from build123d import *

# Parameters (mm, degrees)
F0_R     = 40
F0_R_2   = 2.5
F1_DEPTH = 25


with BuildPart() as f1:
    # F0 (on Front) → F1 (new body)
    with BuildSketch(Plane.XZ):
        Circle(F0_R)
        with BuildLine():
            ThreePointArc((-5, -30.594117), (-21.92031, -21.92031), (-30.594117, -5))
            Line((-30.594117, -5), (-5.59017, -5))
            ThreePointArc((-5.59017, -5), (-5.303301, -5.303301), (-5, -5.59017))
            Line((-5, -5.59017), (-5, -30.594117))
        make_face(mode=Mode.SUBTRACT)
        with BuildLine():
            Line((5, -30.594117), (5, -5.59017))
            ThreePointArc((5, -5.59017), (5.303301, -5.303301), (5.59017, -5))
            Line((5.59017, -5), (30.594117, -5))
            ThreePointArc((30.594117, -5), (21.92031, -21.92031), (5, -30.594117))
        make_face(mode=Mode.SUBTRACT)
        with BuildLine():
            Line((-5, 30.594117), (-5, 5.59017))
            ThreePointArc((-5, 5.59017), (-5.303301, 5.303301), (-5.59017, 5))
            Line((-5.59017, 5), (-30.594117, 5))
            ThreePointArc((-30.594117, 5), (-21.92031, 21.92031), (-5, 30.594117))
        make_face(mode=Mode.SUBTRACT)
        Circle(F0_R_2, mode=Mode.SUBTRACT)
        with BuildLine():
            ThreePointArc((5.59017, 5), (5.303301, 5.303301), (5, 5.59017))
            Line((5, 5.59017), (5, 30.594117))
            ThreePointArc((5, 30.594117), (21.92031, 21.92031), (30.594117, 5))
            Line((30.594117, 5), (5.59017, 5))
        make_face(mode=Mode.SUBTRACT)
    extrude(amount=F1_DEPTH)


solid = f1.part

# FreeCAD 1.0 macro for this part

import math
import FreeCAD as App
import Part
import Sketcher

doc = App.newDocument("Part")
params = doc.addObject("Spreadsheet::Sheet", "Params")
for row, (alias, value) in enumerate([
    ("sketch1_diameter", "80 mm"),
    ("sketch1_diameter2", "5 mm"),
    ("sketch1_radius", "31.000001 mm"),
    ("pad1_length", "25 mm"),
], start=1):
    params.set(f"A{row}", alias)
    params.set(f"B{row}", "=" + value)
    params.setAlias(f"B{row}", alias)

body = doc.addObject("PartDesign::Body", "Body")

# Sketch on XZ plane
sketch1 = doc.addObject("Sketcher::SketchObject", "Sketch")
body.addObject(sketch1)
sketch1.AttachmentSupport = (doc.XZ_Plane, [""])
sketch1.MapMode = "FlatFace"
sketch1.addGeometry(Part.Circle(App.Vector(0, 0, 0), App.Vector(0, 0, 1), 40), False)
sketch1.addGeometry(Part.LineSegment(App.Vector(-5, -5.6, 0), App.Vector(-5, -30.6, 0)), False)
sketch1.addGeometry(Part.ArcOfCircle(Part.Circle(App.Vector(0, 0, 0), App.Vector(0, 0, 1), 31), math.radians(-171), math.radians(-99)), False)
sketch1.addGeometry(Part.LineSegment(App.Vector(-30.6, -5, 0), App.Vector(-5.6, -5, 0)), False)
sketch1.addGeometry(Part.ArcOfCircle(Part.Circle(App.Vector(0, 0, 0), App.Vector(0, 0, 1), 7.5), math.radians(-138.19), math.radians(-131.81)), False)
sketch1.addGeometry(Part.Circle(App.Vector(0, 0, 0), App.Vector(0, 0, 1), 2.5), False)
sketch1.addGeometry(Part.ArcOfCircle(Part.Circle(App.Vector(0, 0, 0), App.Vector(0, 0, 1), 31), math.radians(-81), math.radians(-9)), False)
sketch1.addGeometry(Part.LineSegment(App.Vector(5, -30.6, 0), App.Vector(5, -5.6, 0)), False)
sketch1.addGeometry(Part.ArcOfCircle(Part.Circle(App.Vector(0, 0, 0), App.Vector(0, 0, 1), 7.5), math.radians(-48.19), math.radians(-41.81)), False)
sketch1.addGeometry(Part.LineSegment(App.Vector(5.6, -5, 0), App.Vector(30.6, -5, 0)), False)
sketch1.addGeometry(Part.ArcOfCircle(Part.Circle(App.Vector(0, 0, 0), App.Vector(0, 0, 1), 31), math.radians(99), math.radians(171)), False)
sketch1.addGeometry(Part.LineSegment(App.Vector(-5, 30.6, 0), App.Vector(-5, 5.6, 0)), False)
sketch1.addGeometry(Part.ArcOfCircle(Part.Circle(App.Vector(0, 0, 0), App.Vector(0, 0, 1), 7.5), math.radians(131.81), math.radians(138.19)), False)
sketch1.addGeometry(Part.LineSegment(App.Vector(-5.6, 5, 0), App.Vector(-30.6, 5, 0)), False)
sketch1.addGeometry(Part.LineSegment(App.Vector(30.6, 5, 0), App.Vector(5.6, 5, 0)), False)
sketch1.addGeometry(Part.ArcOfCircle(Part.Circle(App.Vector(0, 0, 0), App.Vector(0, 0, 1), 7.5), math.radians(41.81), math.radians(48.19)), False)
sketch1.addGeometry(Part.LineSegment(App.Vector(5, 5.6, 0), App.Vector(5, 30.6, 0)), False)
sketch1.addGeometry(Part.ArcOfCircle(Part.Circle(App.Vector(0, 0, 0), App.Vector(0, 0, 1), 31), math.radians(9), math.radians(81)), False)
sketch1.addConstraint(Sketcher.Constraint("Coincident", 1, 2, 2, 2))
sketch1.addConstraint(Sketcher.Constraint("Coincident", 2, 1, 3, 1))
sketch1.addConstraint(Sketcher.Constraint("Coincident", 3, 2, 4, 1))
sketch1.addConstraint(Sketcher.Constraint("Coincident", 4, 2, 1, 1))
sketch1.addConstraint(Sketcher.Constraint("Coincident", 6, 1, 7, 1))
sketch1.addConstraint(Sketcher.Constraint("Coincident", 7, 2, 8, 1))
sketch1.addConstraint(Sketcher.Constraint("Coincident", 8, 2, 9, 1))
sketch1.addConstraint(Sketcher.Constraint("Coincident", 9, 2, 6, 2))
sketch1.addConstraint(Sketcher.Constraint("Coincident", 10, 1, 11, 1))
sketch1.addConstraint(Sketcher.Constraint("Coincident", 11, 2, 12, 1))
sketch1.addConstraint(Sketcher.Constraint("Coincident", 12, 2, 13, 1))
sketch1.addConstraint(Sketcher.Constraint("Coincident", 13, 2, 10, 2))
sketch1.addConstraint(Sketcher.Constraint("Coincident", 14, 2, 15, 1))
sketch1.addConstraint(Sketcher.Constraint("Coincident", 15, 2, 16, 1))
sketch1.addConstraint(Sketcher.Constraint("Coincident", 16, 2, 17, 2))
sketch1.addConstraint(Sketcher.Constraint("Coincident", 17, 1, 14, 1))
sketch1.addConstraint(Sketcher.Constraint("Vertical", 1))
sketch1.addConstraint(Sketcher.Constraint("Horizontal", 3))
sketch1.addConstraint(Sketcher.Constraint("Vertical", 7))
sketch1.addConstraint(Sketcher.Constraint("Horizontal", 9))
sketch1.addConstraint(Sketcher.Constraint("Vertical", 11))
sketch1.addConstraint(Sketcher.Constraint("Horizontal", 13))
sketch1.addConstraint(Sketcher.Constraint("Horizontal", 14))
sketch1.addConstraint(Sketcher.Constraint("Vertical", 16))
sketch1.addConstraint(Sketcher.Constraint("Coincident", 0, 3, -1, 1))
sketch1.addConstraint(Sketcher.Constraint("Coincident", 2, 3, -1, 1))
sketch1.addConstraint(Sketcher.Constraint("Coincident", 5, 3, -1, 1))
sketch1.addConstraint(Sketcher.Constraint("Coincident", 6, 3, -1, 1))
sketch1.addConstraint(Sketcher.Constraint("Coincident", 10, 3, -1, 1))
sketch1.addConstraint(Sketcher.Constraint("Coincident", 17, 3, -1, 1))
sketch1.addConstraint(Sketcher.Constraint("Equal", 2, 6))
sketch1.addConstraint(Sketcher.Constraint("Equal", 4, 8))
sketch1.addConstraint(Sketcher.Constraint("Equal", 6, 10))
sketch1.addConstraint(Sketcher.Constraint("Equal", 8, 12))
sketch1.addConstraint(Sketcher.Constraint("Equal", 12, 15))
sketch1.addConstraint(Sketcher.Constraint("Equal", 10, 17))
sketch1.addConstraint(Sketcher.Constraint("Symmetric", 8, 3, 12, 3, -1, 1))
sketch1.addConstraint(Sketcher.Constraint("Symmetric", 4, 3, 15, 3, -1, 1))
sketch1.addConstraint(Sketcher.Constraint("Symmetric", 4, 3, 8, 3, -2))
sketch1.addConstraint(Sketcher.Constraint("Horizontal", 1, 2, 6, 1))
sketch1.addConstraint(Sketcher.Constraint("Horizontal", 3, 2, 8, 2))
sketch1.addConstraint(Sketcher.Constraint("Horizontal", 13, 2, 14, 2))
sketch1.addConstraint(Sketcher.Constraint("Horizontal", 11, 2, 15, 2))
sketch1.addConstraint(Sketcher.Constraint("Vertical", 4, 2, 10, 1))
sketch1.addConstraint(Sketcher.Constraint("Vertical", 3, 2, 12, 2))
sketch1.addConstraint(Sketcher.Constraint("Equal", 14, 1))
sketch1.addConstraint(Sketcher.Constraint("Diameter", 0, 80.0))
sketch1.addConstraint(Sketcher.Constraint("Diameter", 5, 5.0))
sketch1.addConstraint(Sketcher.Constraint("Radius", 2, 31.000001))
sketch1.addConstraint(Sketcher.Constraint("DistanceX", 1, 2, -1, 1, 5.0))
sketch1.addConstraint(Sketcher.Constraint("DistanceY", 2, 1, -1, 1, 5.0))
sketch1.addConstraint(Sketcher.Constraint("Radius", 4, 7.499898))
sketch1.addConstraint(Sketcher.Constraint("DistanceX", 3, 2, 4, 3, 5.590098))
sketch1.setExpression("Constraints[46]", "Params.sketch1_diameter")
sketch1.setExpression("Constraints[47]", "Params.sketch1_diameter2")
sketch1.setExpression("Constraints[48]", "Params.sketch1_radius")
pad1 = doc.addObject("PartDesign::Pad", "Pad")
body.addObject(pad1)
pad1.Profile = sketch1
pad1.setExpression("Length", "Params.pad1_length")

doc.recompute()
